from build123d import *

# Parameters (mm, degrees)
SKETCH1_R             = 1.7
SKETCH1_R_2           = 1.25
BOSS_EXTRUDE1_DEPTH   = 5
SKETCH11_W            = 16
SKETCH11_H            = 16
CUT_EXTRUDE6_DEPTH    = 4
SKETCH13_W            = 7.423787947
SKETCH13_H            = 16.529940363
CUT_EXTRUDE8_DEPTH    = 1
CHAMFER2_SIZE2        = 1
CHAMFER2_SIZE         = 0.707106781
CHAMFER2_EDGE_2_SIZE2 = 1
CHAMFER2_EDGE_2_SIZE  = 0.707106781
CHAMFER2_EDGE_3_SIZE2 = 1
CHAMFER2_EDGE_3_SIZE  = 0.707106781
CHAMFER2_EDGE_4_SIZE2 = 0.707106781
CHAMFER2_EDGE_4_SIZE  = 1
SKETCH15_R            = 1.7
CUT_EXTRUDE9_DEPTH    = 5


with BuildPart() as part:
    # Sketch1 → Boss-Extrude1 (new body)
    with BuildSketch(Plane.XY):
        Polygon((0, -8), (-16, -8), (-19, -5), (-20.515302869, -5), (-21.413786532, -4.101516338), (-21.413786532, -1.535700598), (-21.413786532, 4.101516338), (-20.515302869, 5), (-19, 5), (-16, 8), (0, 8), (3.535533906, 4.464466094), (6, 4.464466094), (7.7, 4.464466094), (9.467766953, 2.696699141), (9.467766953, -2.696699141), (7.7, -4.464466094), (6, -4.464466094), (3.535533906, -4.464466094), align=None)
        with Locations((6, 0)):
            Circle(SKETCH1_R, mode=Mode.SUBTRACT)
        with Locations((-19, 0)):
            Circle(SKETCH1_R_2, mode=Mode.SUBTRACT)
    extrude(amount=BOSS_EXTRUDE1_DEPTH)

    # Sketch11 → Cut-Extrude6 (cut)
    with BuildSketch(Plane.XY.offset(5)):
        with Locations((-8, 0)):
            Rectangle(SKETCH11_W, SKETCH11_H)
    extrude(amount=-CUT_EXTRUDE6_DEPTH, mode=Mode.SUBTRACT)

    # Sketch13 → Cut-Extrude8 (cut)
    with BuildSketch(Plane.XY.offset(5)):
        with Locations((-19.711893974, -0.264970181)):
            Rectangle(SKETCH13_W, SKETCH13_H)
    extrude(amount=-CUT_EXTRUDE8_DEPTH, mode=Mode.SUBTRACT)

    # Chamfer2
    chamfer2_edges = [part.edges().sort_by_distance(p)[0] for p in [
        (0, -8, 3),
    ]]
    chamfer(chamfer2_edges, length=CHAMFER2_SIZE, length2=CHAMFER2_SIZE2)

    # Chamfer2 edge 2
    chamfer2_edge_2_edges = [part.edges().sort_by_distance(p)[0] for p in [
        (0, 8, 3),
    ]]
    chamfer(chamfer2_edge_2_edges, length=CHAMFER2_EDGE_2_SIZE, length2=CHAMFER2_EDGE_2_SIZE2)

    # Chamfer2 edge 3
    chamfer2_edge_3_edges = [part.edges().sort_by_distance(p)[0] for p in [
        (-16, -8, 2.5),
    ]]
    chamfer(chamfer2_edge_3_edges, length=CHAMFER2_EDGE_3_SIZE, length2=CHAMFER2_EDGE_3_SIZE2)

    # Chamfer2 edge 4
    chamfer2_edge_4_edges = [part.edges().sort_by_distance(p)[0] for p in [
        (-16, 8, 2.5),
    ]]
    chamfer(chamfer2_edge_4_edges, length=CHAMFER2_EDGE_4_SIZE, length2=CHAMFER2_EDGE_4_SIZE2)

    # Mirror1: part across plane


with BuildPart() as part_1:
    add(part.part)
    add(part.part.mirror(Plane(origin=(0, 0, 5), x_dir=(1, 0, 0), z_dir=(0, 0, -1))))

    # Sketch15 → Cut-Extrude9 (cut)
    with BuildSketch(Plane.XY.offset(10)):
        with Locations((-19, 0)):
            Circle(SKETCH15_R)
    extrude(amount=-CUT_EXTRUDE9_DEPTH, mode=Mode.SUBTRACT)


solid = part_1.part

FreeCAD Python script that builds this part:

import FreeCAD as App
import Part
import Sketcher


def edges_at(feature, points):
    """Names of the edges that pass closest to the given points."""
    edges = feature.Shape.Edges
    near = lambda p: min(range(len(edges)), key=lambda i: edges[i].distToShape(Part.Vertex(*p))[0])
    return sorted({f"Edge{near(p) + 1}" for p in points})


def add_polygon(sketch, points):
    """Adds a closed chain of lines whose ends are joined by coincident constraints."""
    first, n = sketch.GeometryCount, len(points)
    for a, b in zip(points, points[1:] + points[:1]):
        sketch.addGeometry(Part.LineSegment(App.Vector(*a, 0), App.Vector(*b, 0)), False)
    for i in range(n):
        sketch.addConstraint(Sketcher.Constraint("Coincident", first + i, 2, first + (i + 1) % n, 1))

doc = App.newDocument("Part")
body = doc.addObject("PartDesign::Body", "Body")

sketch1 = body.newObject("Sketcher::SketchObject", "Sketch")
sketch1.AttachmentSupport = (doc.getObject("XY_Plane"), [""])
sketch1.MapMode = "FlatFace"
add_polygon(sketch1, [(-16, -8), (0, -8), (3.5, -4.5), (7.7, -4.5), (9.5, -2.7), (9.5, 2.7), (7.7, 4.5), (3.5, 4.5), (0, 8), (-16, 8), (-19, 5), (-20.5, 5), (-21.4, 4.1), (-21.4, -4.1), (-20.5, -5), (-19, -5)])
sketch1.addGeometry(Part.Circle(App.Vector(6, 0, 0), App.Vector(0, 0, 1), 1.7), False)
sketch1.addGeometry(Part.Circle(App.Vector(-19, 0, 0), App.Vector(0, 0, 1), 1.2), False)
sketch1.addConstraint([
    Sketcher.Constraint("Horizontal", 0),
    Sketcher.Constraint("Horizontal", 2),
    Sketcher.Constraint("Vertical", 4),
    Sketcher.Constraint("Horizontal", 6),
    Sketcher.Constraint("Horizontal", 8),
    Sketcher.Constraint("Horizontal", 10),
    Sketcher.Constraint("Vertical", 12),
    Sketcher.Constraint("Horizontal", 14),
    Sketcher.Constraint("Symmetric", 0, 2, 7, 2, -1, 1),
    Sketcher.Constraint("Symmetric", 2, 2, 5, 2, -1),
    Sketcher.Constraint("Symmetric", 10, 2, 13, 2, -1),
    Sketcher.Constraint("PointOnObject", 16, 3, -1),
    Sketcher.Constraint("PointOnObject", 17, 3, -1),
    Sketcher.Constraint("PointOnObject", 0, 2, -2),
    Sketcher.Constraint("Parallel", 1, 3),
    Sketcher.Constraint("Perpendicular", 3, 5),
    Sketcher.Constraint("Parallel", 5, 7),
    Sketcher.Constraint("Perpendicular", 7, 9),
    Sketcher.Constraint("Parallel", 9, 11),
    Sketcher.Constraint("Perpendicular", 11, 13),
    Sketcher.Constraint("Parallel", 13, 15),
    Sketcher.Constraint("Vertical", 1, 2, 6, 2),
    Sketcher.Constraint("Vertical", 17, 3, 9, 2),
    Sketcher.Constraint("Vertical", 9, 2, 14, 2),
    Sketcher.Constraint("Diameter", 16, 3.4),
    Sketcher.Constraint("Diameter", 17, 2.5),
    Sketcher.Constraint("DistanceX", 0, 1, 0, 2, 16.0),
    Sketcher.Constraint("Distance", 1, 5.0),
    Sketcher.Constraint("DistanceX", -1, 1, 16, 3, 6.0),
    Sketcher.Constraint("DistanceX", 17, 3, -1, 1, 19.0),
    Sketcher.Constraint("DistanceY", 0, 2, -1, 1, 8.0),
    Sketcher.Constraint("Distance", 3, 2.5),
    Sketcher.Constraint("DistanceX", -1, 1, 2, 2, 7.7),
    Sketcher.Constraint("DistanceX", 10, 2, 10, 1, 1.515303),
    Sketcher.Constraint("DistanceY", 12, 2, 12, 1, 8.203033),
])
pad1 = body.newObject("PartDesign::Pad", "Pad")
pad1.Profile = sketch1
pad1.Length = 5

sketch2 = body.newObject("Sketcher::SketchObject", "Sketch001")
sketch2.AttachmentSupport = (doc.getObject("XY_Plane"), [""])
sketch2.MapMode = "FlatFace"
sketch2.AttachmentOffset = App.Placement(App.Vector(0, 0, 5), App.Rotation())
add_polygon(sketch2, [(-16, 8), (-16, -8), (0, -8), (0, 8)])
sketch2.addConstraint([
    Sketcher.Constraint("Vertical", 0),
    Sketcher.Constraint("Horizontal", 1),
    Sketcher.Constraint("Vertical", 2),
    Sketcher.Constraint("Horizontal", 3),
    Sketcher.Constraint("Symmetric", 1, 2, 2, 2, -1, 1),
    Sketcher.Constraint("Equal", 3, 0),
    Sketcher.Constraint("DistanceX", 1, 1, 1, 2, 16.0),
])
pocket1 = body.newObject("PartDesign::Pocket", "Pocket")
pocket1.Profile = sketch2
pocket1.Length = 4

sketch3 = body.newObject("Sketcher::SketchObject", "Sketch002")
sketch3.AttachmentSupport = (doc.getObject("XY_Plane"), [""])
sketch3.MapMode = "FlatFace"
sketch3.AttachmentOffset = App.Placement(App.Vector(0, 0, 5), App.Rotation())
add_polygon(sketch3, [(-23, 8), (-23, -9), (-16, -9), (-16, 8)])
sketch3.addConstraint([
    Sketcher.Constraint("Vertical", 0),
    Sketcher.Constraint("Horizontal", 1),
    Sketcher.Constraint("Vertical", 2),
    Sketcher.Constraint("Horizontal", 3),
    Sketcher.Constraint("DistanceX", 1, 2, -1, 1, 16.0),
    Sketcher.Constraint("DistanceY", -1, 1, 2, 2, 8.0),
    Sketcher.Constraint("DistanceY", 0, 2, 0, 1, 16.52994),
    Sketcher.Constraint("DistanceX", 1, 1, 1, 2, 7.423788),
])
pocket2 = body.newObject("PartDesign::Pocket", "Pocket001")
pocket2.Profile = sketch3
pocket2.Length = 1
doc.recompute()

chamfer = body.newObject("PartDesign::Chamfer", "Chamfer")
chamfer.Base = (pocket2, edges_at(pocket2, [(0, -8, 3)]))
chamfer.ChamferType = "Two distances"
chamfer.Size = 0.707107
chamfer.Size2 = 1
doc.recompute()

chamfer2 = body.newObject("PartDesign::Chamfer", "Chamfer001")
chamfer2.Base = (chamfer, edges_at(chamfer, [(0, 8, 3)]))
chamfer2.ChamferType = "Two distances"
chamfer2.Size = 0.707107
chamfer2.Size2 = 1
doc.recompute()

chamfer3 = body.newObject("PartDesign::Chamfer", "Chamfer002")
chamfer3.Base = (chamfer2, edges_at(chamfer2, [(-16, -8, 2.5)]))
chamfer3.ChamferType = "Two distances"
chamfer3.Size = 0.707107
chamfer3.Size2 = 1
doc.recompute()

chamfer4 = body.newObject("PartDesign::Chamfer", "Chamfer003")
chamfer4.Base = (chamfer3, edges_at(chamfer3, [(-16, 8, 2.5)]))
chamfer4.ChamferType = "Two distances"
chamfer4.Size = 1
chamfer4.Size2 = 0.707107
body2 = doc.addObject("PartDesign::Body", "Body001")
doc.recompute()

body2.BaseFeature = body
doc.recompute()

mirroring = doc.addObject("Part::Mirroring", "Mirroring")
mirroring.Source = body
mirroring.Base = App.Vector(0, 0, 5)
mirroring.Normal = App.Vector(0, 0, -1)
body3 = doc.addObject("PartDesign::Body", "Body002")
body3.BaseFeature = mirroring
boolean = body2.newObject("PartDesign::Boolean", "Boolean")
boolean.Type = "Fuse"
boolean.addObjects([body3])
doc.recompute()

sketch4 = body2.newObject("Sketcher::SketchObject", "Sketch003")
sketch4.AttachmentSupport = (doc.getObject("XY_Plane001"), [""])
sketch4.MapMode = "FlatFace"
sketch4.AttachmentOffset = App.Placement(App.Vector(0, 0, 10), App.Rotation())
sketch4.addGeometry(Part.Circle(App.Vector(-19, 0, 0), App.Vector(0, 0, 1), 1.7), False)
sketch4.addConstraint([
    Sketcher.Constraint("PointOnObject", 0, 3, -1),
    Sketcher.Constraint("Diameter", 0, 3.4),
    Sketcher.Constraint("DistanceX", 0, 3, -1, 1, 19.0),
])
pocket3 = body2.newObject("PartDesign::Pocket", "Pocket002")
pocket3.Profile = sketch4
pocket3.Length = 5
mirroring.Visibility = False

doc.recompute()
